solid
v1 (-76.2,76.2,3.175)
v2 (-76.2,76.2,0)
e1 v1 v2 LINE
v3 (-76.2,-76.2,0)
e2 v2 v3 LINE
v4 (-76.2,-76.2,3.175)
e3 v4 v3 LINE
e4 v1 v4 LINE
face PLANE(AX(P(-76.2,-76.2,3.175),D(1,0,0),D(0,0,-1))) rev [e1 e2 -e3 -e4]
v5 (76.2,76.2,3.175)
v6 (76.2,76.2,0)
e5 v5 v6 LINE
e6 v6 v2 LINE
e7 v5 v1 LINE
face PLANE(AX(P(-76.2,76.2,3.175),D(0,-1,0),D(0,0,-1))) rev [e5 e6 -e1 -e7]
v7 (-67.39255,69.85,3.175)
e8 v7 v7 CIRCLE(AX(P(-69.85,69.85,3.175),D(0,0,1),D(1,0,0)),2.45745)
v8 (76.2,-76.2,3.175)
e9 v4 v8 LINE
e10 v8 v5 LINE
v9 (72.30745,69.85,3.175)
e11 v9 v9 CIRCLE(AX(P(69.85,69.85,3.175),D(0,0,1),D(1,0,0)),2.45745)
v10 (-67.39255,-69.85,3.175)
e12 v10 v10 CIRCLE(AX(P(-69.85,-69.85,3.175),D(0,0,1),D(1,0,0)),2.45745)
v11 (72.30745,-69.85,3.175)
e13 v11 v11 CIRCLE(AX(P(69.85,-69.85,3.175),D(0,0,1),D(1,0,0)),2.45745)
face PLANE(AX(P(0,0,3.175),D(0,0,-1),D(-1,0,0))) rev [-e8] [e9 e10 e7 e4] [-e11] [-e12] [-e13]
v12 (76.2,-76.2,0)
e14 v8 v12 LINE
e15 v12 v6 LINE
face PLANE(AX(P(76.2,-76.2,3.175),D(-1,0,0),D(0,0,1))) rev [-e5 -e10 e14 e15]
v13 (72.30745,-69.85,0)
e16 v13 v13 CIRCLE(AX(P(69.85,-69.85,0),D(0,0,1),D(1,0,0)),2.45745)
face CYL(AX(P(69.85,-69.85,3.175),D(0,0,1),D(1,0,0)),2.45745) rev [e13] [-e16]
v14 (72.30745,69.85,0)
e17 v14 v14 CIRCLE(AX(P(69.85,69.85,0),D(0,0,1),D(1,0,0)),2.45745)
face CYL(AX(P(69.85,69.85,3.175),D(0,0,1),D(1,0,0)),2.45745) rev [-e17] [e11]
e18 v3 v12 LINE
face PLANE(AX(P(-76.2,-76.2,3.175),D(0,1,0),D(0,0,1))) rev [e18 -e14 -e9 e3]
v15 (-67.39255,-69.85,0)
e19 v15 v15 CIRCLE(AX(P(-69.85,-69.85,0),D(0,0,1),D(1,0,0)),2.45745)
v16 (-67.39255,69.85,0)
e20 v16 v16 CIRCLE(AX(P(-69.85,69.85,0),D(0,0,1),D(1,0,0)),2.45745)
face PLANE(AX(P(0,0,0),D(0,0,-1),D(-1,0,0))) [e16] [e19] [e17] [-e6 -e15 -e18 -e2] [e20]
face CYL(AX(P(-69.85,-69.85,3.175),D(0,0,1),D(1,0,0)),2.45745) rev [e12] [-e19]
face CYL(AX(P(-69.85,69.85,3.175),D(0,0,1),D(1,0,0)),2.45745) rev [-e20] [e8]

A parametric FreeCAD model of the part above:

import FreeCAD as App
import Part
import Sketcher
Q = App.Units.Quantity


def add_polygon(sketch, points):
    """Adds a closed chain of lines whose ends are joined by coincident constraints."""
    first, n = sketch.GeometryCount, len(points)
    for a, b in zip(points, points[1:] + points[:1]):
        sketch.addGeometry(Part.LineSegment(App.Vector(*a, 0), App.Vector(*b, 0)), False)
    for i in range(n):
        sketch.addConstraint(Sketcher.Constraint("Coincident", first + i, 2, first + (i + 1) % n, 1))

doc = App.newDocument("Part")
body = doc.addObject("PartDesign::Body", "Body")

# Sketch on XY plane
sketch1 = body.newObject("Sketcher::SketchObject", "Sketch")
sketch1.AttachmentSupport = (doc.getObject("XY_Plane"), [""])
sketch1.MapMode = "FlatFace"
add_polygon(sketch1, [(-76.2, 76.2), (-76.2, -76.2), (76.2, -76.2), (76.2, 76.2)])  # lines 0-3
sketch1.addConstraint(Sketcher.Constraint("Vertical", 0))
sketch1.addConstraint(Sketcher.Constraint("Horizontal", 1))
sketch1.addConstraint(Sketcher.Constraint("Vertical", 2))
sketch1.addConstraint(Sketcher.Constraint("Horizontal", 3))
sketch1.addConstraint(Sketcher.Constraint("Symmetric", 0, 2, 2, 2, -1, 1))
sketch1.addConstraint(Sketcher.Constraint("Equal", 3, 0))
sketch1.addConstraint(Sketcher.Constraint("DistanceX", 1, 1, 1, 2, Q("6 in")))
pad1 = body.newObject("PartDesign::Pad", "Pad")
pad1.Profile = sketch1
pad1.Length = Q("0.125 in")

# Sketch on XY plane
sketch2 = body.newObject("Sketcher::SketchObject", "Sketch001")
sketch2.AttachmentSupport = (doc.getObject("XY_Plane"), [""])
sketch2.MapMode = "FlatFace"
sketch2.AttachmentOffset = App.Placement(App.Vector(0, 0, 0.125 * 25.4), App.Rotation())
sketch2.addGeometry(Part.Circle(App.Vector(69.85, -69.85, 0), App.Vector(0, 0, 1), 2.45745), False)
sketch2.addGeometry(Part.Circle(App.Vector(-69.85, -69.85, 0), App.Vector(0, 0, 1), 2.45745), False)
sketch2.addGeometry(Part.Circle(App.Vector(-69.85, 69.85, 0), App.Vector(0, 0, 1), 2.45745), False)
sketch2.addGeometry(Part.Circle(App.Vector(69.85, 69.85, 0), App.Vector(0, 0, 1), 2.45745), False)
sketch2.addConstraint(Sketcher.Constraint("Equal", 0, 1))
sketch2.addConstraint(Sketcher.Constraint("Equal", 1, 2))
sketch2.addConstraint(Sketcher.Constraint("Equal", 2, 3))
sketch2.addConstraint(Sketcher.Constraint("Symmetric", 0, 3, 2, 3, -1, 1))
sketch2.addConstraint(Sketcher.Constraint("Symmetric", 1, 3, 3, 3, -1, 1))
sketch2.addConstraint(Sketcher.Constraint("Symmetric", 0, 3, 1, 3, -2))
sketch2.addConstraint(Sketcher.Constraint("Diameter", 0, Q("0.1935 in")))
sketch2.addConstraint(Sketcher.Constraint("DistanceX", 1, 3, 0, 3, Q("5.5 in")))
sketch2.addConstraint(Sketcher.Constraint("DistanceY", 1, 3, 2, 3, Q("5.5 in")))
doc.recompute()
hole = body.newObject("PartDesign::Hole", "Hole")
hole.Profile = sketch2
hole.ThreadType = "None"
hole.Diameter = Q("0.1935 in")
hole.DepthType = "ThroughAll"

doc.recompute()
